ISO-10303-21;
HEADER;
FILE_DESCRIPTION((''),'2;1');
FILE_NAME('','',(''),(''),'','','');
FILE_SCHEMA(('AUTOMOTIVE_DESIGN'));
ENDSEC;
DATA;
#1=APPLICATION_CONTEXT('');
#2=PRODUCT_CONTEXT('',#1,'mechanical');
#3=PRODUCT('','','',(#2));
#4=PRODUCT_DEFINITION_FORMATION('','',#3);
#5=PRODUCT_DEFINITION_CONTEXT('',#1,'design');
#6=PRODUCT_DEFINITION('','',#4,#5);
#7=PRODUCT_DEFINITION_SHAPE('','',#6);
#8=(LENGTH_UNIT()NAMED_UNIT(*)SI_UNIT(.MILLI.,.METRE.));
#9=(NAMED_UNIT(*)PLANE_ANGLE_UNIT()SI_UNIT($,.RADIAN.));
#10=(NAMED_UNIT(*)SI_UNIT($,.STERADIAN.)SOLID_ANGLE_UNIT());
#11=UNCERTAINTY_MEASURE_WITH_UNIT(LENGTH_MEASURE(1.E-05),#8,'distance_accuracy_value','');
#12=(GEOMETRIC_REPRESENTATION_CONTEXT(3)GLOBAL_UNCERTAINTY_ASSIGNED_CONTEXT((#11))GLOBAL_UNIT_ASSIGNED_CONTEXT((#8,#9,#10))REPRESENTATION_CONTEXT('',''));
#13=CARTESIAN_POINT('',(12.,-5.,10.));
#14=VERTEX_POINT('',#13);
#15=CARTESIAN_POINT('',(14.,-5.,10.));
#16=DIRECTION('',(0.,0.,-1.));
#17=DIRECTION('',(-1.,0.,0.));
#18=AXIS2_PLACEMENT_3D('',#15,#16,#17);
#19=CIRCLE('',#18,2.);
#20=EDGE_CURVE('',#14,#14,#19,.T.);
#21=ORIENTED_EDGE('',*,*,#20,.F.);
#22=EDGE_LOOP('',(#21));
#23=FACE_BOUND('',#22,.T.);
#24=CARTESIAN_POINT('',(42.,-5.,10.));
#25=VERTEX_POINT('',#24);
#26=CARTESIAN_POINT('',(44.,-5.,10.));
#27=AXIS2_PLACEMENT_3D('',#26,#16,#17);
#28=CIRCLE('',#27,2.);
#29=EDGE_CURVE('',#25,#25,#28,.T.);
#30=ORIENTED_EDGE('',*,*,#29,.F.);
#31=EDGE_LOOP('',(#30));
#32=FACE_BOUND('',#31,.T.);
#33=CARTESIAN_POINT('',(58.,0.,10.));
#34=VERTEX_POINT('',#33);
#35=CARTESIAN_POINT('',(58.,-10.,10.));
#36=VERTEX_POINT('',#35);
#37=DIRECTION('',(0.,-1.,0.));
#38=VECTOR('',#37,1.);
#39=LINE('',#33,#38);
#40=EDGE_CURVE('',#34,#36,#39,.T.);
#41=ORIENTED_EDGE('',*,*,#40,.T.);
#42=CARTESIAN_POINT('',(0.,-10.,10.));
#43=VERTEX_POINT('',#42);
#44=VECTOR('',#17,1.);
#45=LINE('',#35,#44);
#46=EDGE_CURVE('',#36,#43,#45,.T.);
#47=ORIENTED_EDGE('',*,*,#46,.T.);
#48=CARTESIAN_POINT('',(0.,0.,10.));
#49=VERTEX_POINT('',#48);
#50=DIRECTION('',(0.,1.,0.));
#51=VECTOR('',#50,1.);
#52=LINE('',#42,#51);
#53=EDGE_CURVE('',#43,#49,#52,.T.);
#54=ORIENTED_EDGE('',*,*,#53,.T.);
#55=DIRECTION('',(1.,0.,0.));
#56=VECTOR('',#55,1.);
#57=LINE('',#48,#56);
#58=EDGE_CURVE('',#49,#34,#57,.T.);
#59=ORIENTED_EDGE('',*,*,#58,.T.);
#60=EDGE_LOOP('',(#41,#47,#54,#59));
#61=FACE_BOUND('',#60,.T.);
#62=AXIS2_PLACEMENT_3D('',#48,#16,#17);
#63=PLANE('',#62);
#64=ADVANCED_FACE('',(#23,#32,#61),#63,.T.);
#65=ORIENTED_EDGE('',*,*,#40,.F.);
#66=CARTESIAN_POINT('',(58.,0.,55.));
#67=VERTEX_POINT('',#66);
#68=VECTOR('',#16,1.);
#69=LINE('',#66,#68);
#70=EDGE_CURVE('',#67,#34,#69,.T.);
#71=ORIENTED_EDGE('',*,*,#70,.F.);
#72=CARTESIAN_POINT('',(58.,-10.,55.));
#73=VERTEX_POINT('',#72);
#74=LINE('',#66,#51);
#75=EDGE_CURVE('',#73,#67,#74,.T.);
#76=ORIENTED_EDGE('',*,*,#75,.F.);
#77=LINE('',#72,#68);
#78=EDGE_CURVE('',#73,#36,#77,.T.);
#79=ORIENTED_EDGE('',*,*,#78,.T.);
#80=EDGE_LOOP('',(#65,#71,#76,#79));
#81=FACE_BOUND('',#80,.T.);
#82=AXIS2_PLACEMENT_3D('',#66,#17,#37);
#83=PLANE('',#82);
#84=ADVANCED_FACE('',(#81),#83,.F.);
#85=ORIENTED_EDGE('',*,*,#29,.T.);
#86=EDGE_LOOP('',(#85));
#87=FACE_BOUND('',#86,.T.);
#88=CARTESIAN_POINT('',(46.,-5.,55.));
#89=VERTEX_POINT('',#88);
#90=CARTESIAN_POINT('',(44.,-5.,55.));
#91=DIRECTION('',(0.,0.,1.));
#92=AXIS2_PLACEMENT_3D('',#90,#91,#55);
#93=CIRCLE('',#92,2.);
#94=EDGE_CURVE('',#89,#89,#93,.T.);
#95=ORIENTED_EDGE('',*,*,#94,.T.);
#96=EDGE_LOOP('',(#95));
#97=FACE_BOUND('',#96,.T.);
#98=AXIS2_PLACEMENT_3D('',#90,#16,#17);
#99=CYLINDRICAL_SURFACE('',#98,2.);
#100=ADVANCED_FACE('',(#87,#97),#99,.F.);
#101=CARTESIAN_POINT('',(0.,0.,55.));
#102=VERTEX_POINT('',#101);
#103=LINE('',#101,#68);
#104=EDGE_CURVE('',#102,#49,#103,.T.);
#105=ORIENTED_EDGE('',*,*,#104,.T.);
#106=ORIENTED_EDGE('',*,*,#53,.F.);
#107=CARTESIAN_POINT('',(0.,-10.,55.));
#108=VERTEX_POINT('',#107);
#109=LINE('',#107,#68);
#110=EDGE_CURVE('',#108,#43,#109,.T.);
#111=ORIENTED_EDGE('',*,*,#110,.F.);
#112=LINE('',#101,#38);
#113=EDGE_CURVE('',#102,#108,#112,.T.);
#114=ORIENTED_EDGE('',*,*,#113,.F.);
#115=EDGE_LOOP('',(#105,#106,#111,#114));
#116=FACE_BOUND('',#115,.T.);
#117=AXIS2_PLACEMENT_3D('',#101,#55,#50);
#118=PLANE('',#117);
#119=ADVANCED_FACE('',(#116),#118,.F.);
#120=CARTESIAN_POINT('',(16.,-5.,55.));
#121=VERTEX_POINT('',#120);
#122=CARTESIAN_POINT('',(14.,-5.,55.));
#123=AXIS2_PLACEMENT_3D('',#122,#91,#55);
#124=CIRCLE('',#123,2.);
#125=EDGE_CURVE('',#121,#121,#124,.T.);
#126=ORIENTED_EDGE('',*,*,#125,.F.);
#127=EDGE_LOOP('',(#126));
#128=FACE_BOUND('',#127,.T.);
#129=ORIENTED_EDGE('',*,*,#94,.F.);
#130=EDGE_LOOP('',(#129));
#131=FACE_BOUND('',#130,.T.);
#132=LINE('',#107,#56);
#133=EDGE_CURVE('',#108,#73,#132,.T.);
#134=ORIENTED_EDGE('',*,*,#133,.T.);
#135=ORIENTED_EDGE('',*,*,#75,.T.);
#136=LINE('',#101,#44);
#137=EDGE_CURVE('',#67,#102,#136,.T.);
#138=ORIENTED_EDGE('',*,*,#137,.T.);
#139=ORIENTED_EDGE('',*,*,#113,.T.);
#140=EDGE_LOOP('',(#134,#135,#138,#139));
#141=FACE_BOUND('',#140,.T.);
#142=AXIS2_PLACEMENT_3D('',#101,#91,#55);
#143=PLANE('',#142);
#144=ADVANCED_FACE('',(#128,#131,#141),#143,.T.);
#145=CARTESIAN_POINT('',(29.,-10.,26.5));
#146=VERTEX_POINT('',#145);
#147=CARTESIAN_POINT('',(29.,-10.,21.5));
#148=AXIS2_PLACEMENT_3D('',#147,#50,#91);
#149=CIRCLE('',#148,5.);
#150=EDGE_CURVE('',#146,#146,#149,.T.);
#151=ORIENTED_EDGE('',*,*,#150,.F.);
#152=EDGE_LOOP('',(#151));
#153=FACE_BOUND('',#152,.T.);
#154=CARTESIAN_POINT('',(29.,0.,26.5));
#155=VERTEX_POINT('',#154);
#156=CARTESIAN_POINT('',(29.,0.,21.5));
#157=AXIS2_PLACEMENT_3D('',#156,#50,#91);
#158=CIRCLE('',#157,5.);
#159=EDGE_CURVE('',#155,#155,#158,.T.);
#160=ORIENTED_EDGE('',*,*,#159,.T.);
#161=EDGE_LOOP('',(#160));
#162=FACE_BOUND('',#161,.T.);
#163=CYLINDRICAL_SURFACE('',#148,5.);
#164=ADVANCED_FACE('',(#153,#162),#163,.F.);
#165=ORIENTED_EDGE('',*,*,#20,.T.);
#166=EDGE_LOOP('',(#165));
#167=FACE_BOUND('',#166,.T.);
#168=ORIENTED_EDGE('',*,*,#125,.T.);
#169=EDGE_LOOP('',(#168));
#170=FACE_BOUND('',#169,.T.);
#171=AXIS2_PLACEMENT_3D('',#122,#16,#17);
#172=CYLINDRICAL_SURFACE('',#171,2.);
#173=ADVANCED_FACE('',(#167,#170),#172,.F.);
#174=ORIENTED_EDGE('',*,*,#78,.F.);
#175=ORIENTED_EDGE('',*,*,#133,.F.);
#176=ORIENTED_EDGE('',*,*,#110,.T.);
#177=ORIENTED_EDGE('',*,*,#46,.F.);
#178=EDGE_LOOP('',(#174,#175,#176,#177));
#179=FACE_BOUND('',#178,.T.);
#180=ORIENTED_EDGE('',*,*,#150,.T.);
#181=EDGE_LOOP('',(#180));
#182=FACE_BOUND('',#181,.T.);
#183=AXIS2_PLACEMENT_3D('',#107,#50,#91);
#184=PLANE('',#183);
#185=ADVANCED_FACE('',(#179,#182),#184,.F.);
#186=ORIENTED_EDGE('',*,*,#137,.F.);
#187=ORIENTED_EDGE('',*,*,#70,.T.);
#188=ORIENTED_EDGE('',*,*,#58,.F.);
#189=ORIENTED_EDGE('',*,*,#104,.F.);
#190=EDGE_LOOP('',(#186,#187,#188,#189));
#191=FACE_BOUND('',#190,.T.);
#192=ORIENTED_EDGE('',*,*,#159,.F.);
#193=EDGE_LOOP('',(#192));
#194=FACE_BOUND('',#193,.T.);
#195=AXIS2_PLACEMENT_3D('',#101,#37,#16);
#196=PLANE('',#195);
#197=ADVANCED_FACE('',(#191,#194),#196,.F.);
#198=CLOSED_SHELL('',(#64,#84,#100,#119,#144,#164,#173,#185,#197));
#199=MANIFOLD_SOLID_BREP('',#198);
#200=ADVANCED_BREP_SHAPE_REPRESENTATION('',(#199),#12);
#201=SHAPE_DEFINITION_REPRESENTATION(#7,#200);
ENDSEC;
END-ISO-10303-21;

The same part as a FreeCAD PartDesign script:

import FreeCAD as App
import Part
import Sketcher


def add_polygon(sketch, points):
    """Adds a closed chain of lines whose ends are joined by coincident constraints."""
    first, n = sketch.GeometryCount, len(points)
    for a, b in zip(points, points[1:] + points[:1]):
        sketch.addGeometry(Part.LineSegment(App.Vector(*a, 0), App.Vector(*b, 0)), False)
    for i in range(n):
        sketch.addConstraint(Sketcher.Constraint("Coincident", first + i, 2, first + (i + 1) % n, 1))

doc = App.newDocument("Part")
params = doc.addObject("Spreadsheet::Sheet", "Params")
for row, (alias, value) in enumerate([
    ("sketch1_diameter", "4 mm"),
    ("sketch1_width", "58 mm"),
    ("sketch1_height", "10 mm"),
    ("pad1_length", "55 mm"),
    ("sketch2_width", "58 mm"),
    ("sketch2_height", "10 mm"),
    ("pocket1_length", "10 mm"),
    ("sketch3_diameter", "10 mm"),
    ("pocket2_length", "10 mm"),
], start=1):
    params.set(f"A{row}", alias)
    params.set(f"B{row}", "=" + value)
    params.setAlias(f"B{row}", alias)

body = doc.addObject("PartDesign::Body", "Body")

sketch1 = body.newObject("Sketcher::SketchObject", "Sketch")
sketch1.AttachmentSupport = (doc.getObject("XY_Plane"), [""])
sketch1.MapMode = "FlatFace"
add_polygon(sketch1, [(0, 0), (0, -10), (58, -10), (58, 0)])
sketch1.addGeometry(Part.Circle(App.Vector(14, -5, 0), App.Vector(0, 0, 1), 2), False)
sketch1.addGeometry(Part.Circle(App.Vector(44, -5, 0), App.Vector(0, 0, 1), 2), False)
sketch1.addConstraint(Sketcher.Constraint("Vertical", 0))
sketch1.addConstraint(Sketcher.Constraint("Horizontal", 1))
sketch1.addConstraint(Sketcher.Constraint("Vertical", 2))
sketch1.addConstraint(Sketcher.Constraint("Horizontal", 3))
sketch1.addConstraint(Sketcher.Constraint("Coincident", 3, 2, -1, 1))
sketch1.addConstraint(Sketcher.Constraint("Equal", 4, 5))
sketch1.addConstraint(Sketcher.Constraint("Horizontal", 4, 3, 5, 3))
sketch1.addConstraint(Sketcher.Constraint("Diameter", 4, 4.0))
sketch1.addConstraint(Sketcher.Constraint("DistanceX", 1, 1, 1, 2, 58.0))
sketch1.addConstraint(Sketcher.Constraint("DistanceY", 0, 2, 0, 1, 10.0))
sketch1.addConstraint(Sketcher.Constraint("DistanceX", -1, 1, 4, 3, 14.0))
sketch1.addConstraint(Sketcher.Constraint("DistanceY", 4, 3, -1, 1, 5.0))
sketch1.addConstraint(Sketcher.Constraint("DistanceX", -1, 1, 5, 3, 44.0))
sketch1.setExpression("Constraints[11]", "Params.sketch1_diameter")
sketch1.setExpression("Constraints[12]", "Params.sketch1_width")
sketch1.setExpression("Constraints[13]", "Params.sketch1_height")
pad1 = body.newObject("PartDesign::Pad", "Pad")
pad1.Profile = sketch1
pad1.setExpression("Length", "Params.pad1_length")

sketch2 = body.newObject("Sketcher::SketchObject", "Sketch001")
sketch2.AttachmentSupport = (doc.getObject("XY_Plane"), [""])
sketch2.MapMode = "FlatFace"
add_polygon(sketch2, [(58, 0), (58, -10), (0, -10), (0, 0)])
sketch2.addConstraint(Sketcher.Constraint("Vertical", 0))
sketch2.addConstraint(Sketcher.Constraint("Horizontal", 1))
sketch2.addConstraint(Sketcher.Constraint("Vertical", 2))
sketch2.addConstraint(Sketcher.Constraint("Horizontal", 3))
sketch2.addConstraint(Sketcher.Constraint("Coincident", 2, 2, -1, 1))
sketch2.addConstraint(Sketcher.Constraint("DistanceX", 1, 2, 1, 1, 58.0))
sketch2.addConstraint(Sketcher.Constraint("DistanceY", 0, 2, 0, 1, 10.0))
sketch2.setExpression("Constraints[9]", "Params.sketch2_width")
sketch2.setExpression("Constraints[10]", "Params.sketch2_height")
pocket1 = body.newObject("PartDesign::Pocket", "Pocket")
pocket1.Profile = sketch2
pocket1.setExpression("Length", "Params.pocket1_length")
pocket1.Reversed = True

sketch3 = body.newObject("Sketcher::SketchObject", "Sketch002")
sketch3.AttachmentSupport = (doc.getObject("XZ_Plane"), [""])
sketch3.MapMode = "FlatFace"
sketch3.addGeometry(Part.Circle(App.Vector(29, 22, 0), App.Vector(0, 0, 1), 5), False)
sketch3.addConstraint(Sketcher.Constraint("Diameter", 0, 10.0))
sketch3.addConstraint(Sketcher.Constraint("DistanceX", -1, 1, 0, 3, 29.0))
sketch3.addConstraint(Sketcher.Constraint("DistanceY", -1, 1, 0, 3, 21.5))
sketch3.setExpression("Constraints[0]", "Params.sketch3_diameter")
pocket2 = body.newObject("PartDesign::Pocket", "Pocket001")
pocket2.Profile = sketch3
pocket2.setExpression("Length", "Params.pocket2_length")
pocket2.Reversed = True

doc.recompute()
